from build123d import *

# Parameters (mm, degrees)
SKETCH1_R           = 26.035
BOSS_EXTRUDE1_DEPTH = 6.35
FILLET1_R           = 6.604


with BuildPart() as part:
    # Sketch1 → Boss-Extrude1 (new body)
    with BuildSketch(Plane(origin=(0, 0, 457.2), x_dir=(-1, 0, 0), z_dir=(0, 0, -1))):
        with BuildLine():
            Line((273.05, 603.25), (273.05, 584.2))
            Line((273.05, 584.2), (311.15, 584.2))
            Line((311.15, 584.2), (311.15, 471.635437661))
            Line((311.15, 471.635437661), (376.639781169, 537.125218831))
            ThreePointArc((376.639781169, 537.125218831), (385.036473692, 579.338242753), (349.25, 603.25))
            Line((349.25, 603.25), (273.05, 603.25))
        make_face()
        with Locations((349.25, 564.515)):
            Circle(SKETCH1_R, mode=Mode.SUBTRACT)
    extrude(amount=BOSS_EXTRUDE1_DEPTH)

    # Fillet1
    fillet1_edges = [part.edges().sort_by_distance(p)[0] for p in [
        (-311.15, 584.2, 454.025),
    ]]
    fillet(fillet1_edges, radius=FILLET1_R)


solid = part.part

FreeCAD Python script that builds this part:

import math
import FreeCAD as App
import Part
import Sketcher
Q = App.Units.Quantity


def edges_at(feature, points):
    """Names of the edges that pass closest to the given points."""
    edges = feature.Shape.Edges
    near = lambda p: min(range(len(edges)), key=lambda i: edges[i].distToShape(Part.Vertex(*p))[0])
    return sorted({f"Edge{near(p) + 1}" for p in points})

doc = App.newDocument("Part")
params = doc.addObject("Spreadsheet::Sheet", "Params")
for row, (alias, value) in enumerate([
    ("sketch1_diameter", "2.05 in"),
    ("sketch1_width", "3 in"),
    ("sketch1_width2", "1.5 in"),
    ("sketch1_radius", "1.525 in"),
    ("sketch1_height", "0.75 in"),
    ("pad1_length", "0.25 in"),
    ("fillet_radius", "0.26 in"),
], start=1):
    params.set(f"A{row}", alias)
    params.set(f"B{row}", "=" + value)
    params.setAlias(f"B{row}", alias)

body = doc.addObject("PartDesign::Body", "Body")

# Sketch on XY plane
sketch1 = body.newObject("Sketcher::SketchObject", "Sketch")
sketch1.AttachmentSupport = (doc.getObject("XY_Plane"), [""])
sketch1.MapMode = "FlatFace"
sketch1.AttachmentOffset = App.Placement(App.Vector(0, 0, 18 * 25.4), App.Rotation())
sketch1.addGeometry([
    Part.LineSegment(App.Vector(-273.05, 603.25, 0), App.Vector(-273.05, 584.2, 0)),  # 0
    Part.LineSegment(App.Vector(-273.05, 584.2, 0), App.Vector(-311.15, 584.2, 0)),  # 1
    Part.LineSegment(App.Vector(-311.15, 584.2, 0), App.Vector(-311.15, 471.635438, 0)),  # 2
    Part.LineSegment(App.Vector(-311.15, 471.635438, 0), App.Vector(-376.639781, 537.125219, 0)),  # 3
    Part.ArcOfCircle(Part.Circle(App.Vector(-349.25, 564.515, 0), App.Vector(0, 0, 1), 38.735), math.radians(90), math.radians(225)),  # 4
    Part.LineSegment(App.Vector(-349.25, 603.25, 0), App.Vector(-273.05, 603.25, 0)),  # 5
    Part.Circle(App.Vector(-349.25, 564.515, 0), App.Vector(0, 0, 1), 26.035),  # 6
], False)
sketch1.addConstraint([
    Sketcher.Constraint("Coincident", 0, 2, 1, 1),
    Sketcher.Constraint("Coincident", 1, 2, 2, 1),
    Sketcher.Constraint("Coincident", 2, 2, 3, 1),
    Sketcher.Constraint("Tangent", 3, 2, 4, 2),
    Sketcher.Constraint("Tangent", 4, 1, 5, 1),
    Sketcher.Constraint("Coincident", 5, 2, 0, 1),
    Sketcher.Constraint("Vertical", 0),
    Sketcher.Constraint("Horizontal", 1),
    Sketcher.Constraint("Vertical", 2),
    Sketcher.Constraint("Horizontal", 5),
    Sketcher.Constraint("Coincident", 6, 3, 4, 3),
    Sketcher.Constraint("Diameter", 6, Q("2.05 in")),
    Sketcher.Constraint("DistanceX", 5, 1, 5, 2, Q("3 in")),
    Sketcher.Constraint("DistanceX", 1, 2, 1, 1, Q("1.5 in")),
    Sketcher.Constraint("DistanceY", -1, 1, 0, 2, Q("23 in")),
    Sketcher.Constraint("Angle", 3, Q("135 deg")),
    Sketcher.Constraint("Radius", 4, Q("1.525 in")),
    Sketcher.Constraint("DistanceY", 0, 2, 0, 1, Q("0.75 in")),
    Sketcher.Constraint("DistanceX", 4, 3, -1, 1, Q("13.75 in")),
])
sketch1.setExpression("Constraints[11]", "Params.sketch1_diameter")
sketch1.setExpression("Constraints[12]", "Params.sketch1_width")
sketch1.setExpression("Constraints[13]", "Params.sketch1_width2")
sketch1.setExpression("Constraints[16]", "Params.sketch1_radius")
sketch1.setExpression("Constraints[17]", "Params.sketch1_height")
pad1 = body.newObject("PartDesign::Pad", "Pad")
pad1.Profile = sketch1
pad1.setExpression("Length", "Params.pad1_length")
pad1.Reversed = True
doc.recompute()

fillet = body.newObject("PartDesign::Fillet", "Fillet")
fillet.Base = (pad1, edges_at(pad1, [(-311.15, 584.2, 454.025)]))
fillet.setExpression("Radius", "Params.fillet_radius")

doc.recompute()
